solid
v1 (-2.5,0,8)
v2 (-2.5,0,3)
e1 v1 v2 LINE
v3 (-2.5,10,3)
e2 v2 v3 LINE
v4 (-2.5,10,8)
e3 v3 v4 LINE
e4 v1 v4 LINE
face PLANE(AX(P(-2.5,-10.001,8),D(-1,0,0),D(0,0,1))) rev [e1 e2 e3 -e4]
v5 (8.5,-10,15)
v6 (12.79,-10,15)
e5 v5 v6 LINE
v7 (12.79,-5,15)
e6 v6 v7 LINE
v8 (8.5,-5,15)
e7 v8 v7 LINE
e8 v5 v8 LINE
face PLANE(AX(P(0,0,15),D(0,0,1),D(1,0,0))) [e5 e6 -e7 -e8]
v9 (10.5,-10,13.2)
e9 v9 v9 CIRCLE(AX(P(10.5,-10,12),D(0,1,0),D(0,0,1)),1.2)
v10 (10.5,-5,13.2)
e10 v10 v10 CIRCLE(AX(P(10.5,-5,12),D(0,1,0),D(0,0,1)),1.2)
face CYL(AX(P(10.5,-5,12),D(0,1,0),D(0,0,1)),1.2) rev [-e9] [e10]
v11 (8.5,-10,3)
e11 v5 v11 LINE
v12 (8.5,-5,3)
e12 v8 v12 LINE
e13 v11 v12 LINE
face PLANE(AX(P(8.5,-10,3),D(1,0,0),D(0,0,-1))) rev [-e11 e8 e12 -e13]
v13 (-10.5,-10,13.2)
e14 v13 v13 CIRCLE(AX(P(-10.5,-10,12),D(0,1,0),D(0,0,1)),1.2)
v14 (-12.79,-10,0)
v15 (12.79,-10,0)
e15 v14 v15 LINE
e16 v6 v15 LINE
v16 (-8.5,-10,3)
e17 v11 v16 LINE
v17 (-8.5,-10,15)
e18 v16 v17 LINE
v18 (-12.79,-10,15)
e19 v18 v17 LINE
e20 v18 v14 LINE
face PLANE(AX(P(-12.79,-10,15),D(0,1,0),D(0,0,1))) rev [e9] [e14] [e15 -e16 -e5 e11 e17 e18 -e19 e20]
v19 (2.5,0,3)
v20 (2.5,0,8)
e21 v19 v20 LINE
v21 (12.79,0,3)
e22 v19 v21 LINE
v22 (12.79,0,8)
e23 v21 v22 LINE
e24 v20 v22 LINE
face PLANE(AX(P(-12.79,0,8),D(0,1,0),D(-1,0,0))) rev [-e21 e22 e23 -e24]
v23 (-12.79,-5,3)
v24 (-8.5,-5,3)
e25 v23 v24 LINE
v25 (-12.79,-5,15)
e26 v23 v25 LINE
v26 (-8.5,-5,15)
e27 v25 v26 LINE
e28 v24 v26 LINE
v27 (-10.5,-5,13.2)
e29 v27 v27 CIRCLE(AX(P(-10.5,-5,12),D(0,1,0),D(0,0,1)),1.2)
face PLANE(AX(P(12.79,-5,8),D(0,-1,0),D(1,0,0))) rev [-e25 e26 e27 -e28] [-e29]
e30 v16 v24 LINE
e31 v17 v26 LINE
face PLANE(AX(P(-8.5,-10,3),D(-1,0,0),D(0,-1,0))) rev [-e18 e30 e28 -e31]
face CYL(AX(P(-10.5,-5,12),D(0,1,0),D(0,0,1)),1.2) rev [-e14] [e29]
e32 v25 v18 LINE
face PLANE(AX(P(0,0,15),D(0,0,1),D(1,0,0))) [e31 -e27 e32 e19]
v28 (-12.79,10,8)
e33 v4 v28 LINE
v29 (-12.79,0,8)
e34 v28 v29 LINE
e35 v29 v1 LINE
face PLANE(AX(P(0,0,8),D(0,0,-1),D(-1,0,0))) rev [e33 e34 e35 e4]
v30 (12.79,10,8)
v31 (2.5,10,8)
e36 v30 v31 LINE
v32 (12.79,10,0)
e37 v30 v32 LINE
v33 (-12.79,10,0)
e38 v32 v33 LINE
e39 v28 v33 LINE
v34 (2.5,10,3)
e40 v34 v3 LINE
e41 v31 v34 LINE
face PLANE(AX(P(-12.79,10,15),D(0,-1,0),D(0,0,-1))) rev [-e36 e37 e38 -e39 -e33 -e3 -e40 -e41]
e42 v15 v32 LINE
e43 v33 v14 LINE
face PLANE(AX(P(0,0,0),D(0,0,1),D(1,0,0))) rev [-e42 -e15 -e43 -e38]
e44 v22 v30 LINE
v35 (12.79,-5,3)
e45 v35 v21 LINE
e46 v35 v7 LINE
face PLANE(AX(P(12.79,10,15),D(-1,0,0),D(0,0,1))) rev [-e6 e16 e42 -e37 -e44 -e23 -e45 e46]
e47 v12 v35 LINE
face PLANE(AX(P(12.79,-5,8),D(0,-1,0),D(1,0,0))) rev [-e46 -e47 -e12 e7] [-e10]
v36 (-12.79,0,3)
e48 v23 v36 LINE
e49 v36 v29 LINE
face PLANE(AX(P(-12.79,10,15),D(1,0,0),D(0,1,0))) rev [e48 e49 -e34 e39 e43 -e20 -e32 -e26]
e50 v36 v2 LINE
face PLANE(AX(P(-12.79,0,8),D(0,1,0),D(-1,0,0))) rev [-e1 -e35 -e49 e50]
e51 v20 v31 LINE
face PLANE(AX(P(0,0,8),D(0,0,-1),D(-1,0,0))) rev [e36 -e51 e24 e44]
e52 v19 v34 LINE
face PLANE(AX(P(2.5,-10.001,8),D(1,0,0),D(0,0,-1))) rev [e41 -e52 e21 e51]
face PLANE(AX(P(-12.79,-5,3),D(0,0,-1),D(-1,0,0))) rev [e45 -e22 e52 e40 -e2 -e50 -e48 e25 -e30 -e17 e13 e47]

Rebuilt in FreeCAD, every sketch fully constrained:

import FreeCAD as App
import Part
import Sketcher

doc = App.newDocument("Part")
body = doc.addObject("PartDesign::Body", "Body")

# Sketch on XY plane
sketch1 = body.newObject("Sketcher::SketchObject", "Sketch")
sketch1.AttachmentSupport = (doc.getObject("XY_Plane"), [""])
sketch1.MapMode = "FlatFace"
sketch1.addGeometry(Part.LineSegment(App.Vector(-13, 10, 0), App.Vector(-13, -10, 0)), False)
sketch1.addGeometry(Part.LineSegment(App.Vector(-13, -10, 0), App.Vector(13, -10, 0)), False)
sketch1.addGeometry(Part.LineSegment(App.Vector(13, -10, 0), App.Vector(13, 10, 0)), False)
sketch1.addGeometry(Part.LineSegment(App.Vector(13, 10, 0), App.Vector(-13, 10, 0)), False)
sketch1.addConstraint(Sketcher.Constraint("Coincident", 0, 2, 1, 1))
sketch1.addConstraint(Sketcher.Constraint("Coincident", 1, 2, 2, 1))
sketch1.addConstraint(Sketcher.Constraint("Coincident", 2, 2, 3, 1))
sketch1.addConstraint(Sketcher.Constraint("Coincident", 3, 2, 0, 1))
sketch1.addConstraint(Sketcher.Constraint("Vertical", 0))
sketch1.addConstraint(Sketcher.Constraint("Horizontal", 1))
sketch1.addConstraint(Sketcher.Constraint("Vertical", 2))
sketch1.addConstraint(Sketcher.Constraint("Horizontal", 3))
sketch1.addConstraint(Sketcher.Constraint("Symmetric", 0, 2, 2, 2, -1, 1))
sketch1.addConstraint(Sketcher.Constraint("DistanceY", 0, 2, 0, 1, 20.0))
sketch1.addConstraint(Sketcher.Constraint("DistanceX", 1, 1, 1, 2, 25.58))
pad1 = body.newObject("PartDesign::Pad", "Pad")
pad1.Profile = sketch1
pad1.Length = 15

# Sketch on XY plane
sketch2 = body.newObject("Sketcher::SketchObject", "Sketch001")
sketch2.AttachmentSupport = (doc.getObject("XY_Plane"), [""])
sketch2.MapMode = "FlatFace"
sketch2.AttachmentOffset = App.Placement(App.Vector(0, 0, 15), App.Rotation())
sketch2.addGeometry(Part.LineSegment(App.Vector(-13, 10, 0), App.Vector(-13, -5, 0)), False)
sketch2.addGeometry(Part.LineSegment(App.Vector(-13, -5, 0), App.Vector(13, -5, 0)), False)
sketch2.addGeometry(Part.LineSegment(App.Vector(13, -5, 0), App.Vector(13, 10, 0)), False)
sketch2.addGeometry(Part.LineSegment(App.Vector(13, 10, 0), App.Vector(-13, 10, 0)), False)
sketch2.addConstraint(Sketcher.Constraint("Coincident", 0, 2, 1, 1))
sketch2.addConstraint(Sketcher.Constraint("Coincident", 1, 2, 2, 1))
sketch2.addConstraint(Sketcher.Constraint("Coincident", 2, 2, 3, 1))
sketch2.addConstraint(Sketcher.Constraint("Coincident", 3, 2, 0, 1))
sketch2.addConstraint(Sketcher.Constraint("Vertical", 0))
sketch2.addConstraint(Sketcher.Constraint("Horizontal", 1))
sketch2.addConstraint(Sketcher.Constraint("Vertical", 2))
sketch2.addConstraint(Sketcher.Constraint("Horizontal", 3))
sketch2.addConstraint(Sketcher.Constraint("DistanceY", 0, 2, 0, 1, 15.0))
sketch2.addConstraint(Sketcher.Constraint("DistanceY", 0, 2, -1, 1, 5.0))
sketch2.addConstraint(Sketcher.Constraint("DistanceX", 1, 1, 1, 2, 25.58))
sketch2.addConstraint(Sketcher.Constraint("DistanceX", 0, 2, -1, 1, 12.79))
pocket1 = body.newObject("PartDesign::Pocket", "Pocket")
pocket1.Profile = sketch2
pocket1.Length = 7

# Sketch on YZ plane
sketch3 = body.newObject("Sketcher::SketchObject", "Sketch002")
sketch3.AttachmentSupport = (doc.getObject("YZ_Plane"), [""])
sketch3.MapMode = "FlatFace"
sketch3.AttachmentOffset = App.Placement(App.Vector(0, 0, 12.79), App.Rotation())
sketch3.addGeometry(Part.LineSegment(App.Vector(0, 8, 0), App.Vector(-5, 8, 0)), False)
sketch3.addGeometry(Part.LineSegment(App.Vector(-5, 8, 0), App.Vector(-5, 3, 0)), False)
sketch3.addGeometry(Part.LineSegment(App.Vector(-5, 3, 0), App.Vector(0, 3, 0)), False)
sketch3.addGeometry(Part.LineSegment(App.Vector(0, 3, 0), App.Vector(0, 8, 0)), False)
sketch3.addConstraint(Sketcher.Constraint("Coincident", 0, 2, 1, 1))
sketch3.addConstraint(Sketcher.Constraint("Coincident", 1, 2, 2, 1))
sketch3.addConstraint(Sketcher.Constraint("Coincident", 2, 2, 3, 1))
sketch3.addConstraint(Sketcher.Constraint("Coincident", 3, 2, 0, 1))
sketch3.addConstraint(Sketcher.Constraint("Horizontal", 0))
sketch3.addConstraint(Sketcher.Constraint("Vertical", 1))
sketch3.addConstraint(Sketcher.Constraint("Horizontal", 2))
sketch3.addConstraint(Sketcher.Constraint("Vertical", 3))
sketch3.addConstraint(Sketcher.Constraint("PointOnObject", 2, 2, -2))
sketch3.addConstraint(Sketcher.Constraint("Equal", 2, 1))
sketch3.addConstraint(Sketcher.Constraint("DistanceX", 0, 2, 0, 1, 5.0))
sketch3.addConstraint(Sketcher.Constraint("DistanceY", -1, 1, 0, 2, 8.0))
pocket2 = body.newObject("PartDesign::Pocket", "Pocket001")
pocket2.Profile = sketch3
pocket2.Type = "ThroughAll"

# Sketch on XZ plane
sketch4 = body.newObject("Sketcher::SketchObject", "Sketch003")
sketch4.AttachmentSupport = (doc.getObject("XZ_Plane"), [""])
sketch4.MapMode = "FlatFace"
sketch4.AttachmentOffset = App.Placement(App.Vector(0, 0, -10), App.Rotation())
sketch4.addGeometry(Part.LineSegment(App.Vector(-2, 3, 0), App.Vector(-2, 8, 0)), False)
sketch4.addGeometry(Part.LineSegment(App.Vector(-2, 8, 0), App.Vector(2, 8, 0)), False)
sketch4.addGeometry(Part.LineSegment(App.Vector(2, 8, 0), App.Vector(2, 3, 0)), False)
sketch4.addGeometry(Part.LineSegment(App.Vector(2, 3, 0), App.Vector(-2, 3, 0)), False)
sketch4.addConstraint(Sketcher.Constraint("Coincident", 0, 2, 1, 1))
sketch4.addConstraint(Sketcher.Constraint("Coincident", 1, 2, 2, 1))
sketch4.addConstraint(Sketcher.Constraint("Coincident", 2, 2, 3, 1))
sketch4.addConstraint(Sketcher.Constraint("Coincident", 3, 2, 0, 1))
sketch4.addConstraint(Sketcher.Constraint("Vertical", 0))
sketch4.addConstraint(Sketcher.Constraint("Horizontal", 1))
sketch4.addConstraint(Sketcher.Constraint("Vertical", 2))
sketch4.addConstraint(Sketcher.Constraint("Horizontal", 3))
sketch4.addConstraint(Sketcher.Constraint("Equal", 3, 0))
sketch4.addConstraint(Sketcher.Constraint("DistanceX", 1, 1, 1, 2, 5.0))
sketch4.addConstraint(Sketcher.Constraint("DistanceY", -1, 1, 0, 2, 8.0))
sketch4.addConstraint(Sketcher.Constraint("DistanceX", 0, 2, -1, 1, 2.5))
pocket3 = body.newObject("PartDesign::Pocket", "Pocket002")
pocket3.Profile = sketch4
pocket3.Type = "UpToFirst"
pocket3.Reversed = True

# Sketch on XZ plane
sketch5 = body.newObject("Sketcher::SketchObject", "Sketch004")
sketch5.AttachmentSupport = (doc.getObject("XZ_Plane"), [""])
sketch5.MapMode = "FlatFace"
sketch5.AttachmentOffset = App.Placement(App.Vector(0, 0, 5), App.Rotation())
sketch5.addGeometry(Part.Circle(App.Vector(10.5, 12, 0), App.Vector(0, 0, 1), 1.2), False)
sketch5.addGeometry(Part.Circle(App.Vector(-10.5, 12, 0), App.Vector(0, 0, 1), 1.2), False)
sketch5.addConstraint(Sketcher.Constraint("Equal", 0, 1))
sketch5.addConstraint(Sketcher.Constraint("Symmetric", 0, 3, 1, 3, -2))
sketch5.addConstraint(Sketcher.Constraint("Diameter", 0, 2.4))
sketch5.addConstraint(Sketcher.Constraint("DistanceY", -1, 1, 0, 3, 12.0))
sketch5.addConstraint(Sketcher.Constraint("DistanceX", 1, 3, 0, 3, 21.0))
doc.recompute()
hole = body.newObject("PartDesign::Hole", "Hole")
hole.Profile = sketch5
hole.ThreadType = "None"
hole.Diameter = 2.4
hole.DepthType = "ThroughAll"
hole.Reversed = True

# Sketch on XZ plane
sketch6 = body.newObject("Sketcher::SketchObject", "Sketch005")
sketch6.AttachmentSupport = (doc.getObject("XZ_Plane"), [""])
sketch6.MapMode = "FlatFace"
sketch6.AttachmentOffset = App.Placement(App.Vector(0, 0, 5), App.Rotation())
sketch6.addGeometry(Part.LineSegment(App.Vector(-8, 3, 0), App.Vector(-8, 15, 0)), False)
sketch6.addGeometry(Part.LineSegment(App.Vector(-8, 15, 0), App.Vector(8, 15, 0)), False)
sketch6.addGeometry(Part.LineSegment(App.Vector(8, 15, 0), App.Vector(8, 3, 0)), False)
sketch6.addGeometry(Part.LineSegment(App.Vector(8, 3, 0), App.Vector(-8, 3, 0)), False)
sketch6.addConstraint(Sketcher.Constraint("Coincident", 0, 2, 1, 1))
sketch6.addConstraint(Sketcher.Constraint("Coincident", 1, 2, 2, 1))
sketch6.addConstraint(Sketcher.Constraint("Coincident", 2, 2, 3, 1))
sketch6.addConstraint(Sketcher.Constraint("Coincident", 3, 2, 0, 1))
sketch6.addConstraint(Sketcher.Constraint("Vertical", 0))
sketch6.addConstraint(Sketcher.Constraint("Horizontal", 1))
sketch6.addConstraint(Sketcher.Constraint("Vertical", 2))
sketch6.addConstraint(Sketcher.Constraint("Horizontal", 3))
sketch6.addConstraint(Sketcher.Constraint("DistanceX", 1, 1, 1, 2, 17.0))
sketch6.addConstraint(Sketcher.Constraint("DistanceY", 0, 1, 0, 2, 12.0))
sketch6.addConstraint(Sketcher.Constraint("DistanceY", -1, 1, 0, 2, 15.0))
sketch6.addConstraint(Sketcher.Constraint("DistanceX", 0, 2, -1, 1, 8.5))
pocket4 = body.newObject("PartDesign::Pocket", "Pocket003")
pocket4.Profile = sketch6
pocket4.Type = "ThroughAll"
pocket4.Reversed = True

doc.recompute()
